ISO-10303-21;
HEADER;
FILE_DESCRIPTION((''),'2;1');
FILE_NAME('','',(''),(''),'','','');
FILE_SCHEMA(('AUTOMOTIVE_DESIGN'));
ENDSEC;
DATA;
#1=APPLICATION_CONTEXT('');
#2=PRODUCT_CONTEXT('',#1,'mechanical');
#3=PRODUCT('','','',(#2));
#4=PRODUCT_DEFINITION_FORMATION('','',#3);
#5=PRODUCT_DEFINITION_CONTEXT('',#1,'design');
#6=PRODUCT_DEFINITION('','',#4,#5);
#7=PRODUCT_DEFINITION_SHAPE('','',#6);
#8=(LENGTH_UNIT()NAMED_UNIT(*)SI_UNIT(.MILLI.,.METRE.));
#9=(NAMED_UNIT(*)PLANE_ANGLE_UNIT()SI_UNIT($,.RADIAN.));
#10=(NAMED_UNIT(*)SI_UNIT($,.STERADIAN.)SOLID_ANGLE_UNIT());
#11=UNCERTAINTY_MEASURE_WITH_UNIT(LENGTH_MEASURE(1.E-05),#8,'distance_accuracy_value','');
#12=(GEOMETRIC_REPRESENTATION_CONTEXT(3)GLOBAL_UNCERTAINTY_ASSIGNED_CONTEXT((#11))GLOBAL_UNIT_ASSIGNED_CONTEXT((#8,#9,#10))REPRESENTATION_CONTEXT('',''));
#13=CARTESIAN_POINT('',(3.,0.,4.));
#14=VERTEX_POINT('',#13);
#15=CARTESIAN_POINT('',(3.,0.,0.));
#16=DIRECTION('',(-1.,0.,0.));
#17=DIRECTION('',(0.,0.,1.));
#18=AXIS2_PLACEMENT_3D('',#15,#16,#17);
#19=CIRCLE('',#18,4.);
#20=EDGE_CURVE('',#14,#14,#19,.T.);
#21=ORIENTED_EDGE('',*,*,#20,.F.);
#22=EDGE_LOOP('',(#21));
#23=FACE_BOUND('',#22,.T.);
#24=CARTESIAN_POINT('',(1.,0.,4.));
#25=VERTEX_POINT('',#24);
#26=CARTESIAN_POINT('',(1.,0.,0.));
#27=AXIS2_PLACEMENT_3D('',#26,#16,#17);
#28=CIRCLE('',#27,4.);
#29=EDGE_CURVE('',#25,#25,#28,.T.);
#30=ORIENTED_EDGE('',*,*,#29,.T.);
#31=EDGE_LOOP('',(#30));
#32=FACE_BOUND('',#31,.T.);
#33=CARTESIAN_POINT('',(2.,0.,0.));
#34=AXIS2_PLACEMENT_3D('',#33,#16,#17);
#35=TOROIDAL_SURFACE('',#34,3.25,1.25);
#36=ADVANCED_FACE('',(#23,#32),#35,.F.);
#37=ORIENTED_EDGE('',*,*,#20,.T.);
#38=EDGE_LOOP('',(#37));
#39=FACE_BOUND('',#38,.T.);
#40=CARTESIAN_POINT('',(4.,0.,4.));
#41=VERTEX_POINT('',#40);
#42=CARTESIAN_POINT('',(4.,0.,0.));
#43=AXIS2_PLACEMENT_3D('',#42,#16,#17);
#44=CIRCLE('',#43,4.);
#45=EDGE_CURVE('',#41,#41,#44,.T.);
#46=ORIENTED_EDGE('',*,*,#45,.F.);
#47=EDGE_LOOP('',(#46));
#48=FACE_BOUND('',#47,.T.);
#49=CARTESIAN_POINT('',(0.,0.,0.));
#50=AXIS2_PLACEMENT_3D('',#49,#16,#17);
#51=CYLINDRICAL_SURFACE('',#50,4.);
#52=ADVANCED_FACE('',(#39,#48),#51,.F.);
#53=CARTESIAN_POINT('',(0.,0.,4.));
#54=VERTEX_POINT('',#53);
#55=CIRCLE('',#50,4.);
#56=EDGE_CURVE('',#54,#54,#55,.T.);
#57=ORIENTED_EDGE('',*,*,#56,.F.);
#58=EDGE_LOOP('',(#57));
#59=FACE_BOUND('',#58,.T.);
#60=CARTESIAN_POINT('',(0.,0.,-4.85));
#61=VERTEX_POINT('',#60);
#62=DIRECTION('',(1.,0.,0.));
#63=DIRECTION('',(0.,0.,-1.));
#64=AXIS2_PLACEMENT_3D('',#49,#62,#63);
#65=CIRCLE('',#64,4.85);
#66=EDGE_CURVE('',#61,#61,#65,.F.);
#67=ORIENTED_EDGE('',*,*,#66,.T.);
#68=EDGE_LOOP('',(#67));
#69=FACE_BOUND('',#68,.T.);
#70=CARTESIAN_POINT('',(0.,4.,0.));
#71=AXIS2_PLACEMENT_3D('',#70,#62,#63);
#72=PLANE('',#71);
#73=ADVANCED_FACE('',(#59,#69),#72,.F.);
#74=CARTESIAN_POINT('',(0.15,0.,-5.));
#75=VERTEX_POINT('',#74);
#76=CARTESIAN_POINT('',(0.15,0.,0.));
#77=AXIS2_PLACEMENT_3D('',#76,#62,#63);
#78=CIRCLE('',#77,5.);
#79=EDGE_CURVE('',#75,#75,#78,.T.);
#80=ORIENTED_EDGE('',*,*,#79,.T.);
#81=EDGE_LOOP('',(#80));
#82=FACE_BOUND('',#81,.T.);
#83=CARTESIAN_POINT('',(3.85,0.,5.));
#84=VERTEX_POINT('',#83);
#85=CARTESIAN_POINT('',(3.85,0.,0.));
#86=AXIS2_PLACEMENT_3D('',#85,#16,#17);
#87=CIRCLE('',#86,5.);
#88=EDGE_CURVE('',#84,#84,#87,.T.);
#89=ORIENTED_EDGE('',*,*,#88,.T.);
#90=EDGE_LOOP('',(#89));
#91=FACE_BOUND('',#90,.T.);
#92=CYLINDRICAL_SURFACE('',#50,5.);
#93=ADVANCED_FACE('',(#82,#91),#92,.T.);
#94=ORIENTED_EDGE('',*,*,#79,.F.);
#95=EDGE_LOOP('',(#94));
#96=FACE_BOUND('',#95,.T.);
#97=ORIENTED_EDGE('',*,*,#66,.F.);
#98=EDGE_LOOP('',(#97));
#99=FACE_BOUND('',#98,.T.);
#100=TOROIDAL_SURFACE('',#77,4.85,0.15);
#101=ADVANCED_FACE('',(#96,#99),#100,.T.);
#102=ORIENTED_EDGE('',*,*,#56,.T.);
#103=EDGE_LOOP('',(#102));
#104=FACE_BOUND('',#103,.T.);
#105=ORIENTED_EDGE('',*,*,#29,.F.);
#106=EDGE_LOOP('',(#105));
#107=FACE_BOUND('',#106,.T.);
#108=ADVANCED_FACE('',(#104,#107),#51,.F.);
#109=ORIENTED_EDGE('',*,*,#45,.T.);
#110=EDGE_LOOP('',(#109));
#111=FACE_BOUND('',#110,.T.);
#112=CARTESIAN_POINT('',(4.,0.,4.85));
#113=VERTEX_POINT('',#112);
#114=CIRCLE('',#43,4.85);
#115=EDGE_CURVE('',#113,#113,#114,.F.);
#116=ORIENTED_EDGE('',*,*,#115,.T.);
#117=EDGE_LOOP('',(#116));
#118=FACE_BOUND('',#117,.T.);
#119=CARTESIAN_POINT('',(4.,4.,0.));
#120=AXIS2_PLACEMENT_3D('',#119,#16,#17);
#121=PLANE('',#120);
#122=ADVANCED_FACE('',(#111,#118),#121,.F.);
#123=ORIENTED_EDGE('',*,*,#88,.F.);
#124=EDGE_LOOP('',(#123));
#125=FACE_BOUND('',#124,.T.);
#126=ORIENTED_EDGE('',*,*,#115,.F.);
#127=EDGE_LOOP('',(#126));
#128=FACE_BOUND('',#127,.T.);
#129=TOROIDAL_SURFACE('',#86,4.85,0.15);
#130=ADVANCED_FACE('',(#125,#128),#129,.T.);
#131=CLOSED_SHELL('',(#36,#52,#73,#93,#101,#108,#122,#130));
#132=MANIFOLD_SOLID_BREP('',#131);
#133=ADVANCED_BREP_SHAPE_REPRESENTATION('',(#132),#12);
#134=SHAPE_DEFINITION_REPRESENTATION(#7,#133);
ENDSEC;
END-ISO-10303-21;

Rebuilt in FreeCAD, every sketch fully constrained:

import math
import FreeCAD as App
import Part
import Sketcher
from FreeCAD import Vector
Q = App.Units.Quantity


def edges_at(feature, points):
    """Names of the edges that pass closest to the given points."""
    edges = feature.Shape.Edges
    near = lambda p: min(range(len(edges)), key=lambda i: edges[i].distToShape(Part.Vertex(*p))[0])
    return sorted({f"Edge{near(p) + 1}" for p in points})

doc = App.newDocument("Part")
body = doc.addObject("PartDesign::Body", "Body")

# Sketch on XY plane
sketch1 = body.newObject("Sketcher::SketchObject", "Sketch")
sketch1.AttachmentSupport = (doc.getObject("XY_Plane"), [""])
sketch1.MapMode = "FlatFace"
sketch1.addGeometry([
    Part.LineSegment(Vector(0, 4, 0), Vector(1, 4, 0)),  # 0
    Part.ArcOfCircle(Part.Circle(Vector(2, 3.2, 0), Vector(0, 0, 1), 1.2), math.radians(37), math.radians(143)),  # 1
    Part.LineSegment(Vector(3, 4, 0), Vector(4, 4, 0)),  # 2
    Part.LineSegment(Vector(4, 4, 0), Vector(4, 5, 0)),  # 3
    Part.LineSegment(Vector(4, 5, 0), Vector(0, 5, 0)),  # 4
    Part.LineSegment(Vector(0, 5, 0), Vector(0, 4, 0)),  # 5
], False)
sketch1.addConstraint([
    Sketcher.Constraint("Coincident", 0, 2, 1, 2),
    Sketcher.Constraint("Coincident", 1, 1, 2, 1),
    Sketcher.Constraint("Coincident", 2, 2, 3, 1),
    Sketcher.Constraint("Coincident", 3, 2, 4, 1),
    Sketcher.Constraint("Coincident", 4, 2, 5, 1),
    Sketcher.Constraint("Coincident", 5, 2, 0, 1),
    Sketcher.Constraint("Horizontal", 0),
    Sketcher.Constraint("Horizontal", 2),
    Sketcher.Constraint("Vertical", 3),
    Sketcher.Constraint("Horizontal", 4),
    Sketcher.Constraint("Vertical", 5),
    Sketcher.Constraint("PointOnObject", 4, 2, -2),
    Sketcher.Constraint("Horizontal", 0, 2, 1, 1),
    Sketcher.Constraint("Equal", 0, 2),
    Sketcher.Constraint("Equal", 2, 3),
    Sketcher.Constraint("DistanceX", 0, 1, 0, 2, Q("1 mm")),
    Sketcher.Constraint("DistanceX", 4, 2, 4, 1, Q("4 mm")),
    Sketcher.Constraint("Radius", 1, Q("1.25 mm")),
    Sketcher.Constraint("DistanceY", -1, 1, 0, 2, Q("4 mm")),
])
revolution = body.newObject("PartDesign::Revolution", "Revolution")
revolution.Profile = sketch1
revolution.ReferenceAxis = (sketch1, ["H_Axis"])
revolution.Angle = 360
doc.recompute()

fillet = body.newObject("PartDesign::Fillet", "Fillet")
fillet.Base = (revolution, edges_at(revolution, [(4, -5, 0), (0, -5, 0)]))
fillet.Radius = 0.15

doc.recompute()
